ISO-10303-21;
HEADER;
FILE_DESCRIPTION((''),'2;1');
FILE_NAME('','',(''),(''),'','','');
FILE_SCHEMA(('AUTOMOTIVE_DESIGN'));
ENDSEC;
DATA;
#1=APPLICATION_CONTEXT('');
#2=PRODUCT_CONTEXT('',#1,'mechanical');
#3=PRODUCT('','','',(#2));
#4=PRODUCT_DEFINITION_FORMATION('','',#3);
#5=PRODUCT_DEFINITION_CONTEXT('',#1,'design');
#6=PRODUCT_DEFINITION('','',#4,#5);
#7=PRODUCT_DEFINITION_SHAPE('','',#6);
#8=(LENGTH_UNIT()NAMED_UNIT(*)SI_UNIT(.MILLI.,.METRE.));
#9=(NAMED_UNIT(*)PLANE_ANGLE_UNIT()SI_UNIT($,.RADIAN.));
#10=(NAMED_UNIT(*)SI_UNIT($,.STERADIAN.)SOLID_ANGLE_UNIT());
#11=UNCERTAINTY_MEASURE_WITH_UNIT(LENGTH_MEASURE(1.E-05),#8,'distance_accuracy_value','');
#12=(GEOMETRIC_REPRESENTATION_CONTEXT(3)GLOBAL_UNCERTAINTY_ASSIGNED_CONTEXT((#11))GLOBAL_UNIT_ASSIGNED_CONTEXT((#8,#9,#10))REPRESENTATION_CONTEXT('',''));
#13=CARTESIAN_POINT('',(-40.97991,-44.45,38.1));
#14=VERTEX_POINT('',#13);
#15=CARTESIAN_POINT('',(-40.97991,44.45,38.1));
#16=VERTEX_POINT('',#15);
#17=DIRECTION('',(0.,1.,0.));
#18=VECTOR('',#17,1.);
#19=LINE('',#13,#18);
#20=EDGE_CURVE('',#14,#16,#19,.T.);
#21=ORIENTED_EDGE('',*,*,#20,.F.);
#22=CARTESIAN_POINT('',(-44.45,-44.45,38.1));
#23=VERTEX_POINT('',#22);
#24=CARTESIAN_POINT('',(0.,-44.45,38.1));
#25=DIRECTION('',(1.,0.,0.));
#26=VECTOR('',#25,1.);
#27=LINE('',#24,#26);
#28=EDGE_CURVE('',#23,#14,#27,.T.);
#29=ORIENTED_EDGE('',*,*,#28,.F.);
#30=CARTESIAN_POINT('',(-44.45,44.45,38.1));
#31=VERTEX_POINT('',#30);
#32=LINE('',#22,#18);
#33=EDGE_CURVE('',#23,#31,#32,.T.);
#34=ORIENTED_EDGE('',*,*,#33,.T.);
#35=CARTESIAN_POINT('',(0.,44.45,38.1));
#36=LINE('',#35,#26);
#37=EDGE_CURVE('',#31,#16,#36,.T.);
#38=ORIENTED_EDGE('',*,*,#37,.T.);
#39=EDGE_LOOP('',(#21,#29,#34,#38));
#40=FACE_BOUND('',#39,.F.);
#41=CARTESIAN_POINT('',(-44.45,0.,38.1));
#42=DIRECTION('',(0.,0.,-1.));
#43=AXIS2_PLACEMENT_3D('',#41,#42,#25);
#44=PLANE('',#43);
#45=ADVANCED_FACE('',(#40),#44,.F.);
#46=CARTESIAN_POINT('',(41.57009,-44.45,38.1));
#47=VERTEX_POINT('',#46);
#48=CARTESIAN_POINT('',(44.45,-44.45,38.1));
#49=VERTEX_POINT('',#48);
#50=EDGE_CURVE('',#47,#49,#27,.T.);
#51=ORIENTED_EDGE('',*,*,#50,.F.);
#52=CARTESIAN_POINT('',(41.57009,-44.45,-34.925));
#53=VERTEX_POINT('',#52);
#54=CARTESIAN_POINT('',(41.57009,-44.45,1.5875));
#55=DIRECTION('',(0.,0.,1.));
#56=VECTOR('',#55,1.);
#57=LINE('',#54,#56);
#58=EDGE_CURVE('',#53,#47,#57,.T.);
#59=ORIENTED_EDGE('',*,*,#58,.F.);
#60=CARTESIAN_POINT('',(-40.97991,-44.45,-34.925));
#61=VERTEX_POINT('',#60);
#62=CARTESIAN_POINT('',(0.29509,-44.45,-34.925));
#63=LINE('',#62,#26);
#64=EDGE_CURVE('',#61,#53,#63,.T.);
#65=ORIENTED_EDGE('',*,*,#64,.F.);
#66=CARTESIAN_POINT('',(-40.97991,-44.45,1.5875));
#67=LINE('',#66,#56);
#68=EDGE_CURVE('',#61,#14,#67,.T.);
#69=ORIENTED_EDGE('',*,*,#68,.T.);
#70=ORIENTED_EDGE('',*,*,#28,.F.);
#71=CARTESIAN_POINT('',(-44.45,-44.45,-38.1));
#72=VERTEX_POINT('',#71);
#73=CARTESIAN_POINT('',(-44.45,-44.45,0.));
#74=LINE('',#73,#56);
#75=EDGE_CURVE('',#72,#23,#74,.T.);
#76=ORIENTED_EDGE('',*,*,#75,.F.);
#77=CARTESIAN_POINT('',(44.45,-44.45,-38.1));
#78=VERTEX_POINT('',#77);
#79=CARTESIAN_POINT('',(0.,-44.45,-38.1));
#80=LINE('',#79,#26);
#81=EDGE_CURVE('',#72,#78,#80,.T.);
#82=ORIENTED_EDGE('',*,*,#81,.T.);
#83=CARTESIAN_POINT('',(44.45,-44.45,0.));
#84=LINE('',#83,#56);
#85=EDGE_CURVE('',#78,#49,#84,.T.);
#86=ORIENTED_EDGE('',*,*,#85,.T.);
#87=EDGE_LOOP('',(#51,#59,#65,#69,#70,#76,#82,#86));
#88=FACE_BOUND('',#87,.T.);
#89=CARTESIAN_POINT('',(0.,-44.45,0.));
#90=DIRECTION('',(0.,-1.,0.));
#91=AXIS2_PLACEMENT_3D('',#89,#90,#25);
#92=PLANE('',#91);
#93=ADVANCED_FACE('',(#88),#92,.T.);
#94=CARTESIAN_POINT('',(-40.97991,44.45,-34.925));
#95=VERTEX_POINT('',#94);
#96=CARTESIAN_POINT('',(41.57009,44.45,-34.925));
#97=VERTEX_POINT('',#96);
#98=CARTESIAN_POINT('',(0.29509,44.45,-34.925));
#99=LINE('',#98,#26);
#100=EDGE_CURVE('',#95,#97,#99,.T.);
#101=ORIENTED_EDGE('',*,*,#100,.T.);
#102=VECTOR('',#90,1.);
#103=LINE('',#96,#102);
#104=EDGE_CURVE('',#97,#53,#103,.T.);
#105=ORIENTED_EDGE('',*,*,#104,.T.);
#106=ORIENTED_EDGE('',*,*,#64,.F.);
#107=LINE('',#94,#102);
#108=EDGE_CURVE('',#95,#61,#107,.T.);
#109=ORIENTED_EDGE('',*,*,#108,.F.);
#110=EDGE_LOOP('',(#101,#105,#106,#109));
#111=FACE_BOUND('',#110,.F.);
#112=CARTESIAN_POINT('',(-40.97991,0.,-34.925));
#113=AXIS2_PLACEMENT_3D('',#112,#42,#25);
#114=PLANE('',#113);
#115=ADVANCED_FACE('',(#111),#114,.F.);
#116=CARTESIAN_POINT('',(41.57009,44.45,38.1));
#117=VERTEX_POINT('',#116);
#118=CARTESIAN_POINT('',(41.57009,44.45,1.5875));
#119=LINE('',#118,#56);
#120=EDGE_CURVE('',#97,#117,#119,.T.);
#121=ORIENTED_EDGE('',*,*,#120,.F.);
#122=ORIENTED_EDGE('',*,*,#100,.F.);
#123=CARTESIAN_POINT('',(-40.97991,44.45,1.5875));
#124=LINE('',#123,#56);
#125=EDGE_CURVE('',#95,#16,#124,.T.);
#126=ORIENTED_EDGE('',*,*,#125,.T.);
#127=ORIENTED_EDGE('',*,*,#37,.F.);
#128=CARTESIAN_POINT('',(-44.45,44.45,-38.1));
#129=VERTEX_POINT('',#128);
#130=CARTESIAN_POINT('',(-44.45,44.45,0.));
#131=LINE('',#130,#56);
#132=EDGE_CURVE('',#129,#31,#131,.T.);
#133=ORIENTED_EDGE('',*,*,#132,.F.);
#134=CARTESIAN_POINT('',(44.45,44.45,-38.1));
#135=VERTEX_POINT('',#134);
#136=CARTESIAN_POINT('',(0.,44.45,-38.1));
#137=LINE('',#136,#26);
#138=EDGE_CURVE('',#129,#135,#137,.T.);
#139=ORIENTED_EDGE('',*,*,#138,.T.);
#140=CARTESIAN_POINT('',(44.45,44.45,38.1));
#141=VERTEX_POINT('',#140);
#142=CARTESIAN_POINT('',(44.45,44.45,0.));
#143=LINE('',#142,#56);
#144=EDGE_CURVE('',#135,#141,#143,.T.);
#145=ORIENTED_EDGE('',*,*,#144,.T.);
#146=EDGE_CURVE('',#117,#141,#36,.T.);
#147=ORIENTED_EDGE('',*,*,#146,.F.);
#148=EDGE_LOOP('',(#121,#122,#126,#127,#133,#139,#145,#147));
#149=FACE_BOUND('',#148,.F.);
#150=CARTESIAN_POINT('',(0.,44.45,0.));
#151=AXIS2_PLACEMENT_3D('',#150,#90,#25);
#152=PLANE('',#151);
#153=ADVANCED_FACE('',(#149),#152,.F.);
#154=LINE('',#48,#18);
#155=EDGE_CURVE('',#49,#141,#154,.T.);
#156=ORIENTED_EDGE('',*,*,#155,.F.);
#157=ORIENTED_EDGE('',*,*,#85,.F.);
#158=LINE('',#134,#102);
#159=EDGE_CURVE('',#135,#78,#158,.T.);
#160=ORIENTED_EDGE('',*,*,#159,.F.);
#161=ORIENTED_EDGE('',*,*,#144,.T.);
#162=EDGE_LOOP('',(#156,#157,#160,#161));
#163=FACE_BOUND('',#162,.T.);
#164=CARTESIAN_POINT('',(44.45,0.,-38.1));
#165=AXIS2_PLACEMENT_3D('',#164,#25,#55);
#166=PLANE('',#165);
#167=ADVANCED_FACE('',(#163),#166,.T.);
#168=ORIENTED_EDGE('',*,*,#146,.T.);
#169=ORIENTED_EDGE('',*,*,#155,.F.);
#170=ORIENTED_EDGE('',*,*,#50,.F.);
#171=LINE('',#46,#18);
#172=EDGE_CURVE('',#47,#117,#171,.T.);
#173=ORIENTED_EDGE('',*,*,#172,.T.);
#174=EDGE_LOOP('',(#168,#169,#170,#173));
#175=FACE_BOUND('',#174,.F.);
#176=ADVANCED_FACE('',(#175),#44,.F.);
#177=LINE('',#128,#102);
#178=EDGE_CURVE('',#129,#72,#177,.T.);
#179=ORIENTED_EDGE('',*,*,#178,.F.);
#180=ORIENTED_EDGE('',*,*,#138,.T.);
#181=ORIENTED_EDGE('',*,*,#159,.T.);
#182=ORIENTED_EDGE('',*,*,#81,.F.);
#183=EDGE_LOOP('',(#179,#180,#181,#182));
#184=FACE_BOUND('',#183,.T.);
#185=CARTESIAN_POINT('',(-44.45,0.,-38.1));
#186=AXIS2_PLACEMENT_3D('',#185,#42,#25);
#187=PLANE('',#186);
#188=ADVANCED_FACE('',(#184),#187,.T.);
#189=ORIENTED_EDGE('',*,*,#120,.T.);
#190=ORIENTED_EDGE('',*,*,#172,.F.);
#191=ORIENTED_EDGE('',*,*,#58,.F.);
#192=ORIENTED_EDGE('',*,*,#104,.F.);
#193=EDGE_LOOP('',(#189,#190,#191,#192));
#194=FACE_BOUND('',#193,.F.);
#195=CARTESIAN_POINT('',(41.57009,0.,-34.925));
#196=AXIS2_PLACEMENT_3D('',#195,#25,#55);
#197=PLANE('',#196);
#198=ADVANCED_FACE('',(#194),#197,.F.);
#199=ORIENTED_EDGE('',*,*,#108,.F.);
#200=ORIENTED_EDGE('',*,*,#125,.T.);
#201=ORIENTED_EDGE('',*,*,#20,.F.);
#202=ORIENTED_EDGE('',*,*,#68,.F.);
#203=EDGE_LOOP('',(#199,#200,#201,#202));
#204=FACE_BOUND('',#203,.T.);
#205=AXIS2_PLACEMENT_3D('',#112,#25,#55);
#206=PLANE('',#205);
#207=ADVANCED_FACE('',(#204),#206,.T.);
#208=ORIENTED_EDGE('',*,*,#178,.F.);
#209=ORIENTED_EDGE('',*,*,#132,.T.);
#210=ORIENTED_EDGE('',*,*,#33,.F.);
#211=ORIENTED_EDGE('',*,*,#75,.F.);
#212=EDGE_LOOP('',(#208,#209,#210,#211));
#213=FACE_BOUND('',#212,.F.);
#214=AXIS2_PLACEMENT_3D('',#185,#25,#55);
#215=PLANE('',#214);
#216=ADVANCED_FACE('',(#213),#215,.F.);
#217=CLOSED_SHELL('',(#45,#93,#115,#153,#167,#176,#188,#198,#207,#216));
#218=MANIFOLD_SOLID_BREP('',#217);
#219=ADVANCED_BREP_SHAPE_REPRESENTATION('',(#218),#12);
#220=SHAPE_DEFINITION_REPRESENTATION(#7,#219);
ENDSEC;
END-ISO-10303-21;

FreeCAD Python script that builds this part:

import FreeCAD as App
import Part
import Sketcher
from FreeCAD import Vector
Q = App.Units.Quantity


def add_polygon(sketch, points):
    """Adds a closed chain of lines whose ends are joined by coincident constraints."""
    first, n = sketch.GeometryCount, len(points)
    for a, b in zip(points, points[1:] + points[:1]):
        sketch.addGeometry(Part.LineSegment(App.Vector(*a, 0), App.Vector(*b, 0)), False)
    for i in range(n):
        sketch.addConstraint(Sketcher.Constraint("Coincident", first + i, 2, first + (i + 1) % n, 1))

doc = App.newDocument("Part")
body = doc.addObject("PartDesign::Body", "Body")

sketch1 = doc.addObject("Sketcher::SketchObject", "Sketch")
body.addObject(sketch1)
sketch1.AttachmentSupport = (doc.XZ_Plane, [""])
sketch1.MapMode = "FlatFace"
add_polygon(sketch1, [(-44, 38), (-44, -38), (44, -38), (44, 38)])
sketch1.addConstraint(Sketcher.Constraint("Vertical", 0))
sketch1.addConstraint(Sketcher.Constraint("Horizontal", 1))
sketch1.addConstraint(Sketcher.Constraint("Vertical", 2))
sketch1.addConstraint(Sketcher.Constraint("Horizontal", 3))
sketch1.addConstraint(Sketcher.Constraint("Symmetric", 0, 2, 2, 2, -1, 1))
sketch1.addConstraint(Sketcher.Constraint("DistanceY", 0, 2, 0, 1, Q("3 in")))
sketch1.addConstraint(Sketcher.Constraint("DistanceX", 1, 1, 1, 2, Q("3.5 in")))
pad1 = doc.addObject("PartDesign::Pad", "Pad")
body.addObject(pad1)
pad1.Profile = sketch1
pad1.Length = Q("3.5 in")
pad1.Midplane = True

sketch2 = doc.addObject("Sketcher::SketchObject", "Sketch001")
body.addObject(sketch2)
sketch2.AttachmentSupport = (doc.XZ_Plane, [""])
sketch2.MapMode = "FlatFace"
add_polygon(sketch2, [(-41, 38), (-41, -35), (42, -35), (42, 38)])
sketch2.addConstraint(Sketcher.Constraint("Vertical", 0))
sketch2.addConstraint(Sketcher.Constraint("Horizontal", 1))
sketch2.addConstraint(Sketcher.Constraint("Vertical", 2))
sketch2.addConstraint(Sketcher.Constraint("Horizontal", 3))
sketch2.addConstraint(Sketcher.Constraint("DistanceX", 1, 1, 1, 2, Q("3.25 in")))
sketch2.addConstraint(Sketcher.Constraint("DistanceY", -1, 1, 2, 2, Q("1.5 in")))
sketch2.addConstraint(Sketcher.Constraint("DistanceY", 0, 2, 0, 1, Q("2.875 in")))
sketch2.addConstraint(Sketcher.Constraint("DistanceX", 0, 2, -1, 1, 40.97991))
pocket1 = doc.addObject("PartDesign::Pocket", "Pocket")
body.addObject(pocket1)
pocket1.Profile = sketch2
pocket1.Length = Q("3.5 in")
pocket1.Midplane = True

doc.recompute()
